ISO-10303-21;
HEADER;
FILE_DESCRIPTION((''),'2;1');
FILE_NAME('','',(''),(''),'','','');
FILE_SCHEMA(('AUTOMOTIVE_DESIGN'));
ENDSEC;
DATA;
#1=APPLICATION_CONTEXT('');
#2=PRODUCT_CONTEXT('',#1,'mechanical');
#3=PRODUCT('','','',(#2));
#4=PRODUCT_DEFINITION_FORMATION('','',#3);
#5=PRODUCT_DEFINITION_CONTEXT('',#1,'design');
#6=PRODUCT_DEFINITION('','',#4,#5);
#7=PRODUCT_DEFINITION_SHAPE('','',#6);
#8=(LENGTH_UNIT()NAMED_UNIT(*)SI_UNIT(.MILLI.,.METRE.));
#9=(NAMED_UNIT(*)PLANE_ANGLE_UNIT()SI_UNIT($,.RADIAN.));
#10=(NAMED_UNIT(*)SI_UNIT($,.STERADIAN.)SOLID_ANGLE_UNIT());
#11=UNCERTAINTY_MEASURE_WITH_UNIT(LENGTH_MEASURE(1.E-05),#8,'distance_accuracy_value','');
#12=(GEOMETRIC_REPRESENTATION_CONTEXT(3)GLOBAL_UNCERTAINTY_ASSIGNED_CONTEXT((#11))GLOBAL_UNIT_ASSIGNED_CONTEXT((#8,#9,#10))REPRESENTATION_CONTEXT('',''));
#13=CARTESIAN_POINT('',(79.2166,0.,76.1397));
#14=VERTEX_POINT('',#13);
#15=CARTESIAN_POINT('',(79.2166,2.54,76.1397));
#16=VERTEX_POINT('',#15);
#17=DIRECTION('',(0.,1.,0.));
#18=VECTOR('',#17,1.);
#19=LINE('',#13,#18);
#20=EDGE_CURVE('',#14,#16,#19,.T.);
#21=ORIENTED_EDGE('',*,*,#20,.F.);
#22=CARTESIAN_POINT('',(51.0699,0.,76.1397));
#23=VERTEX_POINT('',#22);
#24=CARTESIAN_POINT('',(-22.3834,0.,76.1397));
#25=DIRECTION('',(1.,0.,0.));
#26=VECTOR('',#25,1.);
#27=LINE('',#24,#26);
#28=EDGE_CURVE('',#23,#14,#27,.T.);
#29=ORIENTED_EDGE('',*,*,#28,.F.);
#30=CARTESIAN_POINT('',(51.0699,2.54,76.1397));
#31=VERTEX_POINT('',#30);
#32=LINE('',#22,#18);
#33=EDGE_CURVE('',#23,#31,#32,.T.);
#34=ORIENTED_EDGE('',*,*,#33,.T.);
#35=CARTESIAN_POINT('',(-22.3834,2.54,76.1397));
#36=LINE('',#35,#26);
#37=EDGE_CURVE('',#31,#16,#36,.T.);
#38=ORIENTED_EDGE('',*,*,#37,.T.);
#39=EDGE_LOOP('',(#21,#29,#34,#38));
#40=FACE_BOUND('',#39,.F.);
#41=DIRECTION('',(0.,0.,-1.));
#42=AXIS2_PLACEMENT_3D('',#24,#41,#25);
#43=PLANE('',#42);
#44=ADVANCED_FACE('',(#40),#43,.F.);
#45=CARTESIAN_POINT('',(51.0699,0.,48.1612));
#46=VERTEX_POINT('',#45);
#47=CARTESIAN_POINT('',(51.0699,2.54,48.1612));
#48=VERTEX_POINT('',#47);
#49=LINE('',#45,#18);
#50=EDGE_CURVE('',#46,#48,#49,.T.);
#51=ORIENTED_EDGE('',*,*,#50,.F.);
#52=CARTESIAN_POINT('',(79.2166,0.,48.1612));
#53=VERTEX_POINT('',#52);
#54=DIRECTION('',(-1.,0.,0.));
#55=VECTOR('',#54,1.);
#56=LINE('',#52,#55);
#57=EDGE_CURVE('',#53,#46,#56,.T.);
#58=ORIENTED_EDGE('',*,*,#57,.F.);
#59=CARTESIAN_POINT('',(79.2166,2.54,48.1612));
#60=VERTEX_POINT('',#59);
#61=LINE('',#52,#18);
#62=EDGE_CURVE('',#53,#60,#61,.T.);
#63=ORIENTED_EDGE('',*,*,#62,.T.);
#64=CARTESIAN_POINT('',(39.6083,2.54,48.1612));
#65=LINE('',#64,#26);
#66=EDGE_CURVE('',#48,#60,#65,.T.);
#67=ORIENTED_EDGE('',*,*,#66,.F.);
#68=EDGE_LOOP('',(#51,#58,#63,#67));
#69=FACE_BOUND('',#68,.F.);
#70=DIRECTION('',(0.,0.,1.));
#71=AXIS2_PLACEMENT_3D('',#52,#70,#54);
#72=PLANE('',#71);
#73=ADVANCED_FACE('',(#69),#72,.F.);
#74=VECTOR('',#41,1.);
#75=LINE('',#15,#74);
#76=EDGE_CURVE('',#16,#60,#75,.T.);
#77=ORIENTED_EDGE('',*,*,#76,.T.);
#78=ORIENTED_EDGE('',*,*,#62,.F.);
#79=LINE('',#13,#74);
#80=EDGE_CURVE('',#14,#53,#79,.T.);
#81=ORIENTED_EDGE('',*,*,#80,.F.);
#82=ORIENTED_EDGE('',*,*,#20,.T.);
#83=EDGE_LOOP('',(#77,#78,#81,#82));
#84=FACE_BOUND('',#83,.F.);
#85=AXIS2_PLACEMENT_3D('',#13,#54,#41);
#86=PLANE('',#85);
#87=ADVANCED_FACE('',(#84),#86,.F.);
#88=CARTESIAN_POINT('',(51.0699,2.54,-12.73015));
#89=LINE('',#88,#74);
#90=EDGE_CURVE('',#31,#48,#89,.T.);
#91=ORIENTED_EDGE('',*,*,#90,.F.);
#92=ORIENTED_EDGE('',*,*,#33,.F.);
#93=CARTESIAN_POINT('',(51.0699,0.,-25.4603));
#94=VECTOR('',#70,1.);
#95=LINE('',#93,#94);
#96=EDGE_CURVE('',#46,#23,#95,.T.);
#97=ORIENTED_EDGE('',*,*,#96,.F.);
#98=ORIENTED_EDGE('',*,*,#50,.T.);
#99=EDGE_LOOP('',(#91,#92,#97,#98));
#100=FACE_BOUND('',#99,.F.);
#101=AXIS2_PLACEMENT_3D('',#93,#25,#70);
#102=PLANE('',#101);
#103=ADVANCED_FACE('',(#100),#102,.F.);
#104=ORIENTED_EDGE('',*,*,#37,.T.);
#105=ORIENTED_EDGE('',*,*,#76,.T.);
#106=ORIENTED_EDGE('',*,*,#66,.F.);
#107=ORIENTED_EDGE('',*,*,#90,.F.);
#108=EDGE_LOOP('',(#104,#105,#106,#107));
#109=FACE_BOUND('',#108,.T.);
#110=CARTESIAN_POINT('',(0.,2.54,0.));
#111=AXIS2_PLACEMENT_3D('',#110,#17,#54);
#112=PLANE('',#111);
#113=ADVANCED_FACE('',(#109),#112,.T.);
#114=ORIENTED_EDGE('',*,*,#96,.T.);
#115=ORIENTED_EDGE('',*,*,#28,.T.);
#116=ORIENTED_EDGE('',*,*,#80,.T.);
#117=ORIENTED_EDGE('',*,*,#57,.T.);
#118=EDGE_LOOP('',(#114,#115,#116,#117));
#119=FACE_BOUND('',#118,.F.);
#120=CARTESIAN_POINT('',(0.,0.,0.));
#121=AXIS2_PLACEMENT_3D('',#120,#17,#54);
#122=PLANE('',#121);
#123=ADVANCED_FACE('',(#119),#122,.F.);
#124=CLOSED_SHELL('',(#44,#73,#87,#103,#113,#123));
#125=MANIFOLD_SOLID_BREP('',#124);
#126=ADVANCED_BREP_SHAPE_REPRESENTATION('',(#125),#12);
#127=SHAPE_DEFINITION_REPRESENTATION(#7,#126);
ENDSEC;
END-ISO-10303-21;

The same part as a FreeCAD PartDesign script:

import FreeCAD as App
import Part
import Sketcher

V = App.Vector
Q = App.Units.Quantity

doc = App.newDocument("Part")
body = doc.addObject("PartDesign::Body", "Body")

# Sketch on XZ plane
sketch1 = body.newObject("Sketcher::SketchObject", "Sketch")
sketch1.AttachmentSupport = (doc.getObject("XZ_Plane"), [""])
sketch1.MapMode = "FlatFace"
sketch1.addGeometry([
    Part.LineSegment(V(-22, -25, 0), V(-22, 76, 0)),
    Part.LineSegment(V(-22, 76, 0), V(79, 76, 0)),
    Part.LineSegment(V(79, 76, 0), V(79, -25, 0)),
    Part.LineSegment(V(79, -25, 0), V(-22, -25, 0)),
], False)
sketch1.addConstraint([
    Sketcher.Constraint("Coincident", 0, 2, 1, 1),
    Sketcher.Constraint("Coincident", 1, 2, 2, 1),
    Sketcher.Constraint("Coincident", 2, 2, 3, 1),
    Sketcher.Constraint("Coincident", 3, 2, 0, 1),
    Sketcher.Constraint("Vertical", 0),
    Sketcher.Constraint("Horizontal", 1),
    Sketcher.Constraint("Vertical", 2),
    Sketcher.Constraint("Horizontal", 3),
    Sketcher.Constraint("Equal", 3, 0),
    Sketcher.Constraint("DistanceX", 1, 1, 1, 2, Q("4 in")),
    Sketcher.Constraint("DistanceX", 0, 2, -1, 1, 22.3834),
    Sketcher.Constraint("DistanceY", -1, 1, 0, 2, 76.1397),
])
pad1 = body.newObject("PartDesign::Pad", "Pad")
pad1.Profile = sketch1
pad1.Length = Q("0.1 in")
pad1.Reversed = True

# Sketch on XZ plane
sketch2 = body.newObject("Sketcher::SketchObject", "Sketch001")
sketch2.AttachmentSupport = (doc.getObject("XZ_Plane"), [""])
sketch2.MapMode = "FlatFace"
sketch2.addGeometry([
    Part.LineSegment(V(51, 76, 0), V(-22, 76, 0)),
    Part.LineSegment(V(-22, 76, 0), V(-22, -25, 0)),
    Part.LineSegment(V(-22, -25, 0), V(51, -25, 0)),
    Part.LineSegment(V(51, -25, 0), V(51, 76, 0)),
], False)
sketch2.addConstraint([
    Sketcher.Constraint("Coincident", 0, 2, 1, 1),
    Sketcher.Constraint("Coincident", 1, 2, 2, 1),
    Sketcher.Constraint("Coincident", 2, 2, 3, 1),
    Sketcher.Constraint("Coincident", 3, 2, 0, 1),
    Sketcher.Constraint("Horizontal", 0),
    Sketcher.Constraint("Vertical", 1),
    Sketcher.Constraint("Horizontal", 2),
    Sketcher.Constraint("Vertical", 3),
    Sketcher.Constraint("DistanceY", 1, 2, 1, 1, Q("4 in")),
    Sketcher.Constraint("DistanceX", 0, 2, 0, 1, 73.4533),
    Sketcher.Constraint("DistanceX", 0, 2, -1, 1, 22.3834),
    Sketcher.Constraint("DistanceY", -1, 1, 0, 2, 76.1397),
])
pocket1 = body.newObject("PartDesign::Pocket", "Pocket")
pocket1.Profile = sketch2
pocket1.Length = Q("1 in")

# Sketch on XZ plane
sketch3 = body.newObject("Sketcher::SketchObject", "Sketch002")
sketch3.AttachmentSupport = (doc.getObject("XZ_Plane"), [""])
sketch3.MapMode = "FlatFace"
sketch3.addGeometry([
    Part.LineSegment(V(79, -25, 0), V(79, 48, 0)),
    Part.LineSegment(V(79, 48, 0), V(51, 48, 0)),
    Part.LineSegment(V(51, 48, 0), V(51, -25, 0)),
    Part.LineSegment(V(51, -25, 0), V(79, -25, 0)),
], False)
sketch3.addConstraint([
    Sketcher.Constraint("Coincident", 0, 2, 1, 1),
    Sketcher.Constraint("Coincident", 1, 2, 2, 1),
    Sketcher.Constraint("Coincident", 2, 2, 3, 1),
    Sketcher.Constraint("Coincident", 3, 2, 0, 1),
    Sketcher.Constraint("Vertical", 0),
    Sketcher.Constraint("Horizontal", 1),
    Sketcher.Constraint("Vertical", 2),
    Sketcher.Constraint("Horizontal", 3),
    Sketcher.Constraint("DistanceX", 1, 2, 1, 1, 28.1467),
    Sketcher.Constraint("DistanceY", 0, 1, 0, 2, 73.6215),
    Sketcher.Constraint("DistanceY", -1, 1, 0, 2, Q("1.8961 in")),
    Sketcher.Constraint("DistanceX", -1, 1, 0, 2, 79.2166),
])
pocket2 = body.newObject("PartDesign::Pocket", "Pocket001")
pocket2.Profile = sketch3
pocket2.Length = Q("1 in")

doc.recompute()
